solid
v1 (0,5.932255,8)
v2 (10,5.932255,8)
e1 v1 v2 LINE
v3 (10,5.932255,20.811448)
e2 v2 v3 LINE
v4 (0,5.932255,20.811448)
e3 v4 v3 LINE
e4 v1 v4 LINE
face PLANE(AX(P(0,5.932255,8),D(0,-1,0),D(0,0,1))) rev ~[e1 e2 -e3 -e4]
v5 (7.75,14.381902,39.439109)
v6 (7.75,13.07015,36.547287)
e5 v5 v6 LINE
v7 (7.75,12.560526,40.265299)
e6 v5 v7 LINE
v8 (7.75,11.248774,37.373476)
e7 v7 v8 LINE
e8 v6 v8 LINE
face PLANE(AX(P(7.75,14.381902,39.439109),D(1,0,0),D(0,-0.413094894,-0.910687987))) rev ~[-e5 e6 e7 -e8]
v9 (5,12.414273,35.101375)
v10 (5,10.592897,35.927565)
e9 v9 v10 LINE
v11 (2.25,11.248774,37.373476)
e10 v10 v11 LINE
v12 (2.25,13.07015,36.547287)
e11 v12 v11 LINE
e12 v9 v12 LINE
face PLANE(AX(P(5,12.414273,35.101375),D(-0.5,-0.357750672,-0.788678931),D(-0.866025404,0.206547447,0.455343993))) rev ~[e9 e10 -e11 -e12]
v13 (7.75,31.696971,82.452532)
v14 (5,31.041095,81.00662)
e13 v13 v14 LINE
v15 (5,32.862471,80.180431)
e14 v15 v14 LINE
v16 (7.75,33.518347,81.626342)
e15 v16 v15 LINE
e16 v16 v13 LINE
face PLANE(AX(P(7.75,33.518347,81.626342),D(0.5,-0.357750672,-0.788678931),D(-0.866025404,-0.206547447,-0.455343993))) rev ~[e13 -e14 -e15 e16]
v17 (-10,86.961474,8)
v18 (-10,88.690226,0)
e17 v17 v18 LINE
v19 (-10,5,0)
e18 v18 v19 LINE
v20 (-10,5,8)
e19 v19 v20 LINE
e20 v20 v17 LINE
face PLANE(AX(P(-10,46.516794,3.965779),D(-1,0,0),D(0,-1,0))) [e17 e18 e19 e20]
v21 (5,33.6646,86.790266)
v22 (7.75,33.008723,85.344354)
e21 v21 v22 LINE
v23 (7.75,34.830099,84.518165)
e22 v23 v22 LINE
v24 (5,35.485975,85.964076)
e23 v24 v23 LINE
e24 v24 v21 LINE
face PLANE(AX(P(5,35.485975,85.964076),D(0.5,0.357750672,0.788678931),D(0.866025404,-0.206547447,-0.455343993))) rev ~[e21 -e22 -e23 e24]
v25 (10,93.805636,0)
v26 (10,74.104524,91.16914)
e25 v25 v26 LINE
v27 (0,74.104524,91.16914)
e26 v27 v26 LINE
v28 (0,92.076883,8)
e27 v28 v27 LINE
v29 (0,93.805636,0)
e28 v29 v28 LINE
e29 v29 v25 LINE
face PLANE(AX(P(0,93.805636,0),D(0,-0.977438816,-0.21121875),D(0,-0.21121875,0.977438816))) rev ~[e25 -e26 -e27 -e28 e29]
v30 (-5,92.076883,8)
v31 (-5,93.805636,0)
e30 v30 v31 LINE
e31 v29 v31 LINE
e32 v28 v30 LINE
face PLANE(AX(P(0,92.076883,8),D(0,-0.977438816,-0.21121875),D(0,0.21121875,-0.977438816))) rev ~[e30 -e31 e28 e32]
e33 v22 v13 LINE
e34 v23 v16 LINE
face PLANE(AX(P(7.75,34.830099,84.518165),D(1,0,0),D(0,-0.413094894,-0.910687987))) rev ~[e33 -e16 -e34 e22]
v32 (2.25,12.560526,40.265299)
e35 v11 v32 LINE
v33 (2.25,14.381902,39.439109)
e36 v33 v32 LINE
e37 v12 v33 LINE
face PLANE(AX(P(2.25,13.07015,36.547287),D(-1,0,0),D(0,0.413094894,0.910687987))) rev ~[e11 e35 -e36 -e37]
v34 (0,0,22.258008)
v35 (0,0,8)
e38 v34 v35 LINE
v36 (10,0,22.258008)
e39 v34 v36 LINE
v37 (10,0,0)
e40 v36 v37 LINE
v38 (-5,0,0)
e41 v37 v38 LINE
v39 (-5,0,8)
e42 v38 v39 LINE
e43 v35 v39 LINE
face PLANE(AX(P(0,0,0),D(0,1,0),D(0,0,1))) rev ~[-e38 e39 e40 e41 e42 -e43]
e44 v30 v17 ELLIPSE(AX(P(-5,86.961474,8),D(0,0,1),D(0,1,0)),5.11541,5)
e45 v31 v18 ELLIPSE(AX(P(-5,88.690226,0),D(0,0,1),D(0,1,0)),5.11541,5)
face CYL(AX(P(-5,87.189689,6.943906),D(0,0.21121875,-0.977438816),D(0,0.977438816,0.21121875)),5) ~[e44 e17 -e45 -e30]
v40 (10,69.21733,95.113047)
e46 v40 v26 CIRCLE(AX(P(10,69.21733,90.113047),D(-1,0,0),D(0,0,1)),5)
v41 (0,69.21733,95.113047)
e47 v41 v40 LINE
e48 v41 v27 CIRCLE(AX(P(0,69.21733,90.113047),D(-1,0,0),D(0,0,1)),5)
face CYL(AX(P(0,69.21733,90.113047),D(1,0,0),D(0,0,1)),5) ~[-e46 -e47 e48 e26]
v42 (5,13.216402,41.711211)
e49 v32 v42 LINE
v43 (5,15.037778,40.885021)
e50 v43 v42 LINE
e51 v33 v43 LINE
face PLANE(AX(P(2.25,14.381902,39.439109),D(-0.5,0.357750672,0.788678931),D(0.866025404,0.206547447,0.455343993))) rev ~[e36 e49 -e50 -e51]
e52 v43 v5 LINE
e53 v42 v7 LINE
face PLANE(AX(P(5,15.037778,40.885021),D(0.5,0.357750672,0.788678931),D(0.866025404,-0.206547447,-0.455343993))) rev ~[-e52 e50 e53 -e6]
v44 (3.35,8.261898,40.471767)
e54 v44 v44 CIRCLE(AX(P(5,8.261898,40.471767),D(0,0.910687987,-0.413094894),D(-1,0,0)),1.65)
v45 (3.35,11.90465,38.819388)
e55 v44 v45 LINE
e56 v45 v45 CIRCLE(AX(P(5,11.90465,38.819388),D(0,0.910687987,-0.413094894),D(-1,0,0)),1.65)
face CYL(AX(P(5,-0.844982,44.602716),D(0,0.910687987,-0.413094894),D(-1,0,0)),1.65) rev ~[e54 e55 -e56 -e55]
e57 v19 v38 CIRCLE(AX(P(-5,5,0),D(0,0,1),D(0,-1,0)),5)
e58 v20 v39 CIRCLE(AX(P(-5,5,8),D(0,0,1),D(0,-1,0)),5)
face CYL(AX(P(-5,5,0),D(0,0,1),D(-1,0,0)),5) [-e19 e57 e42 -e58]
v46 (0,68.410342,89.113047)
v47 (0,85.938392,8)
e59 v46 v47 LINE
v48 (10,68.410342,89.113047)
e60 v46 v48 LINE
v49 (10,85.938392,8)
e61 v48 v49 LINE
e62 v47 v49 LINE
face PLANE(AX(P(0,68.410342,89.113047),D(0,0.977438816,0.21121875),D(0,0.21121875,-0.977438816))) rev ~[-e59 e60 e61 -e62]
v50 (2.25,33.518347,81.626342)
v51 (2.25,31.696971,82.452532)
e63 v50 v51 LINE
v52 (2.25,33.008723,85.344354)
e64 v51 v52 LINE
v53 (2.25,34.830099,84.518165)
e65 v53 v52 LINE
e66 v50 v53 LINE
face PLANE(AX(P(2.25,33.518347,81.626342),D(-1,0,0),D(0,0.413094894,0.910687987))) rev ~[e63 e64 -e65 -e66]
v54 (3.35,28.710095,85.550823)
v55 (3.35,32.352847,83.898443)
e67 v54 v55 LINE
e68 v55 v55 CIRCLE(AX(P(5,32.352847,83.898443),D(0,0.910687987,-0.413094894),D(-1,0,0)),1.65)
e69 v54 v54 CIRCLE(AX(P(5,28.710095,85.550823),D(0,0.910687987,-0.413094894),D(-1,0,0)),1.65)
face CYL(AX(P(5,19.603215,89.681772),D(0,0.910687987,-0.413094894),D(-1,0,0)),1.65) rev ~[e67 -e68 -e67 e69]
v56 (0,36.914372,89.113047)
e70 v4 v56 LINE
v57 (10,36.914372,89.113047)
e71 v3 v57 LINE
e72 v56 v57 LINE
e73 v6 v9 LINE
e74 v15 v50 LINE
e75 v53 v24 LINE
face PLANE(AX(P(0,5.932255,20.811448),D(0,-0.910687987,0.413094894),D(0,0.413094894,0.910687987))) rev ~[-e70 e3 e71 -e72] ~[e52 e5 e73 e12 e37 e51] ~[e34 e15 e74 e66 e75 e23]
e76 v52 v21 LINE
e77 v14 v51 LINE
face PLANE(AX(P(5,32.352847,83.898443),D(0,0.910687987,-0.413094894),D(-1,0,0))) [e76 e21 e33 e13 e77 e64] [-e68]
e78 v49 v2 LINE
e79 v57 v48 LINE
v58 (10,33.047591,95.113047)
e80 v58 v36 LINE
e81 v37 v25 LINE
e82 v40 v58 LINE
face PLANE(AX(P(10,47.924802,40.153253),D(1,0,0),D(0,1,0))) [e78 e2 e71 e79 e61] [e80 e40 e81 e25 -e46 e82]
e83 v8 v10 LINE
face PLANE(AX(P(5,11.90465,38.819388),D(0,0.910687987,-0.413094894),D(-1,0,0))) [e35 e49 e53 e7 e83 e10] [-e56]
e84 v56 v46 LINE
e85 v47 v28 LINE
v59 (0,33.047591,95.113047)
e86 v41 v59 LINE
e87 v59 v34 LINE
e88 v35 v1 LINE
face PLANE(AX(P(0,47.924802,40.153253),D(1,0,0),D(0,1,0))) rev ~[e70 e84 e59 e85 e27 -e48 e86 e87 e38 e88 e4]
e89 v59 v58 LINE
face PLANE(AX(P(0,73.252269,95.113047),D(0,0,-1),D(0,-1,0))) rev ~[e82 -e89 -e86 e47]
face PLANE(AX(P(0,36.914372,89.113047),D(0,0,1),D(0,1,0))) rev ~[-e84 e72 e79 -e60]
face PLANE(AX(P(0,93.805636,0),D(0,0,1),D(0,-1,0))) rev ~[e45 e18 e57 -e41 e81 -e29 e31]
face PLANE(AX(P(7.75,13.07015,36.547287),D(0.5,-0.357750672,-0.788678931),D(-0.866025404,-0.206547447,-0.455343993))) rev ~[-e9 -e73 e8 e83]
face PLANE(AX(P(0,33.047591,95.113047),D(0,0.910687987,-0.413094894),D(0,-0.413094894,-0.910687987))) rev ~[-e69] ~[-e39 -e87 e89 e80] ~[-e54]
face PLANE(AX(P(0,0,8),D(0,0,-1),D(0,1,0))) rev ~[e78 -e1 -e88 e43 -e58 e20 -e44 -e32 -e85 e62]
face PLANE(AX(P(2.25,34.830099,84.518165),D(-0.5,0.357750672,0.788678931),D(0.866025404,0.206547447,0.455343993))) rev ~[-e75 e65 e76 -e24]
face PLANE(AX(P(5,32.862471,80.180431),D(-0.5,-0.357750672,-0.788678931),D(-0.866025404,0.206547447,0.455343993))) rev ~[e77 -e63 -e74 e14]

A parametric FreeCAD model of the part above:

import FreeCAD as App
import Part
import Sketcher
from FreeCAD import Vector
Q = App.Units.Quantity


def edges_at(feature, points):
    """Names of the edges that pass closest to the given points."""
    edges = feature.Shape.Edges
    near = lambda p: min(range(len(edges)), key=lambda i: edges[i].distToShape(Part.Vertex(*p))[0])
    return sorted({f"Edge{near(p) + 1}" for p in points})

doc = App.newDocument("Part")
params = doc.addObject("Spreadsheet::Sheet", "Params")
for row, (alias, value) in enumerate([
    ("sketch1_length", "80 mm"),
    ("sketch1_length2", "75 mm"),
    ("pad1_length", "10 mm"),
    ("sketch2_height", "8 mm"),
    ("pad2_length", "10 mm"),
    ("fillet_radius", "5 mm"),
    ("sketch3_diameter", "3.3 mm"),
    ("hole_diameter", "3.3 mm"),
    ("hole_depth", "10 mm"),
    ("pocket1_length", "2 mm"),
], start=1):
    params.set(f"A{row}", alias)
    params.set(f"B{row}", "=" + value)
    params.setAlias(f"B{row}", alias)

body = doc.addObject("PartDesign::Body", "Body")

sketch1 = body.newObject("Sketcher::SketchObject", "Sketch")
sketch1.AttachmentSupport = (doc.getObject("YZ_Plane"), [""])
sketch1.MapMode = "FlatFace"
sketch1.addGeometry(Part.LineSegment(Vector(0, 22, 0), Vector(0, 0, 0)), False)
sketch1.addGeometry(Part.LineSegment(Vector(0, 0, 0), Vector(94, 0, 0)), False)
sketch1.addGeometry(Part.LineSegment(Vector(94, 0, 0), Vector(73, 95, 0)), False)
sketch1.addGeometry(Part.LineSegment(Vector(73, 95, 0), Vector(33, 95, 0)), False)
sketch1.addGeometry(Part.LineSegment(Vector(33, 95, 0), Vector(0, 22, 0)), False)
sketch1.addGeometry(Part.LineSegment(Vector(37, 89, 0), Vector(68, 89, 0)), False)
sketch1.addGeometry(Part.LineSegment(Vector(68, 89, 0), Vector(86, 8, 0)), False)
sketch1.addGeometry(Part.LineSegment(Vector(86, 8, 0), Vector(6, 8, 0)), False)
sketch1.addGeometry(Part.LineSegment(Vector(6, 8, 0), Vector(6, 21, 0)), False)
sketch1.addGeometry(Part.LineSegment(Vector(6, 21, 0), Vector(37, 89, 0)), False)
sketch1.addConstraint(Sketcher.Constraint("Coincident", 0, 2, 1, 1))
sketch1.addConstraint(Sketcher.Constraint("Coincident", 1, 2, 2, 1))
sketch1.addConstraint(Sketcher.Constraint("Coincident", 2, 2, 3, 1))
sketch1.addConstraint(Sketcher.Constraint("Coincident", 3, 2, 4, 1))
sketch1.addConstraint(Sketcher.Constraint("Coincident", 4, 2, 0, 1))
sketch1.addConstraint(Sketcher.Constraint("Coincident", 5, 2, 6, 1))
sketch1.addConstraint(Sketcher.Constraint("Coincident", 6, 2, 7, 1))
sketch1.addConstraint(Sketcher.Constraint("Coincident", 7, 2, 8, 1))
sketch1.addConstraint(Sketcher.Constraint("Coincident", 8, 2, 9, 1))
sketch1.addConstraint(Sketcher.Constraint("Coincident", 9, 2, 5, 1))
sketch1.addConstraint(Sketcher.Constraint("Vertical", 0))
sketch1.addConstraint(Sketcher.Constraint("Horizontal", 1))
sketch1.addConstraint(Sketcher.Constraint("Horizontal", 3))
sketch1.addConstraint(Sketcher.Constraint("Horizontal", 5))
sketch1.addConstraint(Sketcher.Constraint("Horizontal", 7))
sketch1.addConstraint(Sketcher.Constraint("Vertical", 8))
sketch1.addConstraint(Sketcher.Constraint("Coincident", 0, 2, -1, 1))
sketch1.addConstraint(Sketcher.Constraint("Parallel", 2, 6))
sketch1.addConstraint(Sketcher.Constraint("Parallel", 4, 9))
sketch1.addConstraint(Sketcher.Constraint("Distance", 4, Q("80 mm")))
sketch1.addConstraint(Sketcher.Constraint("Distance", 9, Q("75 mm")))
sketch1.addConstraint(Sketcher.Constraint("DistanceY", -1, 1, 6, 2, Q("8 mm")))
sketch1.addConstraint(Sketcher.Constraint("DistanceY", 5, 2, 2, 2, Q("6 mm")))
sketch1.addConstraint(Sketcher.Constraint("DistanceX", 5, 1, 5, 2, Q("31.49597 mm")))
sketch1.addConstraint(Sketcher.Constraint("DistanceY", 8, 2, 3, 2, Q("74.301599 mm")))
sketch1.addConstraint(Sketcher.Constraint("Distance", 2, Q("97.30844 mm")))
sketch1.addConstraint(Sketcher.Constraint("DistanceX", 1, 1, 1, 2, Q("93.805636 mm")))
sketch1.addConstraint(Sketcher.Constraint("DistanceX", 3, 2, 3, 1, Q("40.204678 mm")))
sketch1.addConstraint(Sketcher.Constraint("DistanceX", -1, 1, 5, 2, Q("68.410342 mm")))
sketch1.setExpression("Constraints[19]", "Params.sketch1_length")
sketch1.setExpression("Constraints[20]", "Params.sketch1_length2")
pad1 = body.newObject("PartDesign::Pad", "Pad")
pad1.Profile = sketch1
pad1.setExpression("Length", "Params.pad1_length")

sketch2 = body.newObject("Sketcher::SketchObject", "Sketch001")
sketch2.AttachmentSupport = (doc.getObject("YZ_Plane"), [""])
sketch2.MapMode = "FlatFace"
sketch2.addGeometry(Part.LineSegment(Vector(92, 8, 0), Vector(94, 0, 0)), False)
sketch2.addGeometry(Part.LineSegment(Vector(94, 0, 0), Vector(0, 0, 0)), False)
sketch2.addGeometry(Part.LineSegment(Vector(0, 0, 0), Vector(0, 8, 0)), False)
sketch2.addGeometry(Part.LineSegment(Vector(0, 8, 0), Vector(92, 8, 0)), False)
sketch2.addConstraint(Sketcher.Constraint("Coincident", 0, 2, 1, 1))
sketch2.addConstraint(Sketcher.Constraint("Coincident", 1, 2, 2, 1))
sketch2.addConstraint(Sketcher.Constraint("Coincident", 2, 2, 3, 1))
sketch2.addConstraint(Sketcher.Constraint("Coincident", 3, 2, 0, 1))
sketch2.addConstraint(Sketcher.Constraint("Horizontal", 1))
sketch2.addConstraint(Sketcher.Constraint("Vertical", 2))
sketch2.addConstraint(Sketcher.Constraint("Horizontal", 3))
sketch2.addConstraint(Sketcher.Constraint("Coincident", 1, 2, -1, 1))
sketch2.addConstraint(Sketcher.Constraint("DistanceY", 2, 1, 2, 2, Q("8 mm")))
sketch2.addConstraint(Sketcher.Constraint("DistanceX", 1, 2, 1, 1, Q("93.805636 mm")))
sketch2.addConstraint(Sketcher.Constraint("DistanceX", 3, 1, 3, 2, Q("92.076883 mm")))
sketch2.setExpression("Constraints[8]", "Params.sketch2_height")
pad2 = body.newObject("PartDesign::Pad", "Pad001")
pad2.Profile = sketch2
pad2.setExpression("Length", "Params.pad2_length")
pad2.Reversed = True
doc.recompute()

fillet = body.newObject("PartDesign::Fillet", "Fillet")
fillet.Base = (pad2, edges_at(pad2, [(-10, 92.941, 4), (-10, 0, 4), (5, 73.252, 95.113)]))
fillet.setExpression("Radius", "Params.fillet_radius")

sketch3 = body.newObject("Sketcher::SketchObject", "Sketch002")
sketch3.Placement = App.Placement(Vector(0, -8.373475, 3.798271), App.Rotation(Vector(1, 0, 0), Vector(0, 0.413094894, 0.910687987), Vector(0, -0.910687987, 0.413094894), "ZXY"))
sketch3.addGeometry(Part.Circle(Vector(5, 89.8, 0), Vector(0, 0, 1), 1.6), False)
sketch3.addGeometry(Part.Circle(Vector(5, 40.3, 0), Vector(0, 0, 1), 1.6), False)
sketch3.addConstraint(Sketcher.Constraint("Equal", 0, 1))
sketch3.addConstraint(Sketcher.Constraint("Vertical", 0, 3, 1, 3))
sketch3.addConstraint(Sketcher.Constraint("Diameter", 0, Q("3.3 mm")))
sketch3.addConstraint(Sketcher.Constraint("DistanceX", -1, 1, 0, 3, Q("5 mm")))
sketch3.addConstraint(Sketcher.Constraint("DistanceY", 1, 3, 0, 3, Q("49.5 mm")))
sketch3.addConstraint(Sketcher.Constraint("DistanceY", -1, 1, 0, 3, Q("89.7701 mm")))
sketch3.setExpression("Constraints[2]", "Params.sketch3_diameter")
doc.recompute()
hole = body.newObject("PartDesign::Hole", "Hole")
hole.Profile = sketch3
hole.ThreadType = "None"
hole.setExpression("Diameter", "Params.hole_diameter")
hole.DepthType = "Dimension"
hole.setExpression("Depth", "Params.hole_depth")
hole.DrillPoint = "Angled"
hole.DrillPointAngle = 118

sketch4 = body.newObject("Sketcher::SketchObject", "Sketch003")
sketch4.Placement = App.Placement(Vector(0, -2.909347, 1.319702), App.Rotation(Vector(-1, 0, 0), Vector(0, 0.413094894, 0.910687987), Vector(0, 0.910687987, -0.413094894), "ZXY"))
sketch4.addGeometry(Part.LineSegment(Vector(-7.8, 41.9, 0), Vector(-7.8, 38.7, 0)), False)
sketch4.addGeometry(Part.LineSegment(Vector(-7.8, 38.7, 0), Vector(-5, 37.1, 0)), False)
sketch4.addGeometry(Part.LineSegment(Vector(-5, 37.1, 0), Vector(-2.2, 38.7, 0)), False)
sketch4.addGeometry(Part.LineSegment(Vector(-2.2, 38.7, 0), Vector(-2.2, 41.9, 0)), False)
sketch4.addGeometry(Part.LineSegment(Vector(-2.2, 41.9, 0), Vector(-5, 43.4, 0)), False)
sketch4.addGeometry(Part.LineSegment(Vector(-5, 43.4, 0), Vector(-7.8, 41.9, 0)), False)
sketch4.addGeometry(Part.LineSegment(Vector(-7.8, 91.4, 0), Vector(-7.8, 88.2, 0)), False)
sketch4.addGeometry(Part.LineSegment(Vector(-7.8, 88.2, 0), Vector(-5, 86.6, 0)), False)
sketch4.addGeometry(Part.LineSegment(Vector(-5, 86.6, 0), Vector(-2.2, 88.2, 0)), False)
sketch4.addGeometry(Part.LineSegment(Vector(-2.2, 88.2, 0), Vector(-2.2, 91.4, 0)), False)
sketch4.addGeometry(Part.LineSegment(Vector(-2.2, 91.4, 0), Vector(-5, 92.9, 0)), False)
sketch4.addGeometry(Part.LineSegment(Vector(-5, 92.9, 0), Vector(-7.8, 91.4, 0)), False)
sketch4.addConstraint(Sketcher.Constraint("Coincident", 0, 2, 1, 1))
sketch4.addConstraint(Sketcher.Constraint("Coincident", 1, 2, 2, 1))
sketch4.addConstraint(Sketcher.Constraint("Coincident", 2, 2, 3, 1))
sketch4.addConstraint(Sketcher.Constraint("Coincident", 3, 2, 4, 1))
sketch4.addConstraint(Sketcher.Constraint("Coincident", 4, 2, 5, 1))
sketch4.addConstraint(Sketcher.Constraint("Coincident", 5, 2, 0, 1))
sketch4.addConstraint(Sketcher.Constraint("Coincident", 6, 2, 7, 1))
sketch4.addConstraint(Sketcher.Constraint("Coincident", 7, 2, 8, 1))
sketch4.addConstraint(Sketcher.Constraint("Coincident", 8, 2, 9, 1))
sketch4.addConstraint(Sketcher.Constraint("Coincident", 9, 2, 10, 1))
sketch4.addConstraint(Sketcher.Constraint("Coincident", 10, 2, 11, 1))
sketch4.addConstraint(Sketcher.Constraint("Coincident", 11, 2, 6, 1))
sketch4.addConstraint(Sketcher.Constraint("Vertical", 0))
sketch4.addConstraint(Sketcher.Constraint("Vertical", 3))
sketch4.addConstraint(Sketcher.Constraint("Vertical", 6))
sketch4.addConstraint(Sketcher.Constraint("Vertical", 9))
sketch4.addConstraint(Sketcher.Constraint("Parallel", 1, 4))
sketch4.addConstraint(Sketcher.Constraint("Parallel", 2, 5))
sketch4.addConstraint(Sketcher.Constraint("Parallel", 4, 7))
sketch4.addConstraint(Sketcher.Constraint("Parallel", 5, 8))
sketch4.addConstraint(Sketcher.Constraint("Parallel", 7, 10))
sketch4.addConstraint(Sketcher.Constraint("Parallel", 8, 11))
sketch4.addConstraint(Sketcher.Constraint("Horizontal", 0, 2, 2, 2))
sketch4.addConstraint(Sketcher.Constraint("Horizontal", 3, 2, 5, 2))
sketch4.addConstraint(Sketcher.Constraint("Horizontal", 6, 2, 8, 2))
sketch4.addConstraint(Sketcher.Constraint("Horizontal", 9, 2, 11, 2))
sketch4.addConstraint(Sketcher.Constraint("Vertical", 1, 2, 4, 2))
sketch4.addConstraint(Sketcher.Constraint("Vertical", 5, 2, 6, 2))
sketch4.addConstraint(Sketcher.Constraint("Vertical", 4, 2, 7, 2))
sketch4.addConstraint(Sketcher.Constraint("Equal", 3, 6))
sketch4.addConstraint(Sketcher.Constraint("Angle", 1, Q("-30 deg")))
sketch4.addConstraint(Sketcher.Constraint("DistanceX", 1, 2, -1, 1, Q("5 mm")))
sketch4.addConstraint(Sketcher.Constraint("DistanceX", 0, 2, 2, 2, Q("5.5 mm")))
sketch4.addConstraint(Sketcher.Constraint("DistanceY", 0, 2, 6, 2, Q("49.5 mm")))
sketch4.addConstraint(Sketcher.Constraint("DistanceY", 0, 2, 0, 1, Q("3.175426 mm")))
sketch4.addConstraint(Sketcher.Constraint("DistanceY", -1, 1, 0, 2, Q("38.682387 mm")))
pocket1 = body.newObject("PartDesign::Pocket", "Pocket")
pocket1.Profile = sketch4
pocket1.setExpression("Length", "Params.pocket1_length")

doc.recompute()
